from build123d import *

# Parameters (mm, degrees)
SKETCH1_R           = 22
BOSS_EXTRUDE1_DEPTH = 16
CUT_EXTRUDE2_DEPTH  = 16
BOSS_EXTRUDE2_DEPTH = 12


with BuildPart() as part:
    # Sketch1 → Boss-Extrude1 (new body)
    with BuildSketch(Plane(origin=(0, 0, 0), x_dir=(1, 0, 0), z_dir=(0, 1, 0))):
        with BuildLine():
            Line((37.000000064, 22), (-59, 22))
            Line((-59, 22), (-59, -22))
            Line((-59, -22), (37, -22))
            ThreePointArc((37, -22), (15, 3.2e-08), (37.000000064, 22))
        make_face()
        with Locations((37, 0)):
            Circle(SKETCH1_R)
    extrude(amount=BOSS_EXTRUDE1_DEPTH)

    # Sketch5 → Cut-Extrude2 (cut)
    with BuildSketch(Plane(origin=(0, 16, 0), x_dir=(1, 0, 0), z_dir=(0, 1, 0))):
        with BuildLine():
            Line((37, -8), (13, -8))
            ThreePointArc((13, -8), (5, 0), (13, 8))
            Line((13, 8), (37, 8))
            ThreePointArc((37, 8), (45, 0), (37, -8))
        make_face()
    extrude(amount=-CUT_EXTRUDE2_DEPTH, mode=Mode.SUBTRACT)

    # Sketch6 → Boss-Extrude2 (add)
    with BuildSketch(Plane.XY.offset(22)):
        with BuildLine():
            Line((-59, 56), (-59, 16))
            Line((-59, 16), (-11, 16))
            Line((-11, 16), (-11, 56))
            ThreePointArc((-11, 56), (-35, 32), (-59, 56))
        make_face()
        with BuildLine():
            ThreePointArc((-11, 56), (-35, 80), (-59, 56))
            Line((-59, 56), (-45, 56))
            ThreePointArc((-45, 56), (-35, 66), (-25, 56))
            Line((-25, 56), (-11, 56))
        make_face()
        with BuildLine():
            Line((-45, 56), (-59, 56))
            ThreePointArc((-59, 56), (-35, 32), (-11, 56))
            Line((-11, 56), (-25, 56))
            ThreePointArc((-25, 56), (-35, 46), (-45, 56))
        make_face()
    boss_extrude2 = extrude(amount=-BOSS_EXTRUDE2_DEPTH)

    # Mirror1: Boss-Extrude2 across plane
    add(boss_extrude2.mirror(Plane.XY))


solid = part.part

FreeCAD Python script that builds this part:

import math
import FreeCAD as App
import Part
import Sketcher

doc = App.newDocument("Part")
body = doc.addObject("PartDesign::Body", "Body")

# Sketch on XZ plane
sketch1 = body.newObject("Sketcher::SketchObject", "Sketch")
sketch1.AttachmentSupport = (doc.getObject("XZ_Plane"), [""])
sketch1.MapMode = "FlatFace"
sketch1.addGeometry([
    Part.LineSegment(App.Vector(37, -22, 0), App.Vector(-59, -22, 0)),
    Part.LineSegment(App.Vector(-59, -22, 0), App.Vector(-59, 22, 0)),
    Part.LineSegment(App.Vector(-59, 22, 0), App.Vector(37, 22, 0)),
    Part.ArcOfCircle(Part.Circle(App.Vector(37, 0, 0), App.Vector(0, 0, 1), 22), math.radians(-90), math.radians(90)),
], False)
sketch1.addConstraint([
    Sketcher.Constraint("Coincident", 0, 2, 1, 1),
    Sketcher.Constraint("Coincident", 1, 2, 2, 1),
    Sketcher.Constraint("Tangent", 2, 2, 3, 2),
    Sketcher.Constraint("Tangent", 3, 1, 0, 1),
    Sketcher.Constraint("Horizontal", 0),
    Sketcher.Constraint("Vertical", 1),
    Sketcher.Constraint("Horizontal", 2),
    Sketcher.Constraint("PointOnObject", 3, 3, -1),
    Sketcher.Constraint("Radius", 3, 22.0),
    Sketcher.Constraint("DistanceX", 0, 2, 0, 1, 96.0),
    Sketcher.Constraint("DistanceX", -1, 1, 3, 3, 37.0),
])
pad1 = body.newObject("PartDesign::Pad", "Pad")
pad1.Profile = sketch1
pad1.Length = 16
pad1.Reversed = True

# Sketch on XZ plane
sketch2 = body.newObject("Sketcher::SketchObject", "Sketch001")
sketch2.AttachmentSupport = (doc.getObject("XZ_Plane"), [""])
sketch2.MapMode = "FlatFace"
sketch2.AttachmentOffset = App.Placement(App.Vector(0, 0, -16), App.Rotation())
sketch2.addGeometry([
    Part.LineSegment(App.Vector(13, 8, 0), App.Vector(37, 8, 0)),
    Part.ArcOfCircle(Part.Circle(App.Vector(37, 0, 0), App.Vector(0, 0, 1), 8), math.radians(-90), math.radians(90)),
    Part.LineSegment(App.Vector(37, -8, 0), App.Vector(13, -8, 0)),
    Part.ArcOfCircle(Part.Circle(App.Vector(13, 0, 0), App.Vector(0, 0, 1), 8), math.radians(90), math.radians(270)),
], False)
sketch2.addConstraint([
    Sketcher.Constraint("Tangent", 0, 2, 1, 2),
    Sketcher.Constraint("Tangent", 1, 1, 2, 1),
    Sketcher.Constraint("Tangent", 2, 2, 3, 2),
    Sketcher.Constraint("Tangent", 3, 1, 0, 1),
    Sketcher.Constraint("Horizontal", 0),
    Sketcher.Constraint("Horizontal", 2),
    Sketcher.Constraint("PointOnObject", 1, 3, -1),
    Sketcher.Constraint("Radius", 1, 8.0),
    Sketcher.Constraint("DistanceX", 0, 1, 0, 2, 24.0),
    Sketcher.Constraint("DistanceX", -1, 1, 1, 3, 37.0),
])
pocket1 = body.newObject("PartDesign::Pocket", "Pocket")
pocket1.Profile = sketch2
pocket1.Length = 16
pocket1.Reversed = True

# Sketch on XY plane
sketch3 = body.newObject("Sketcher::SketchObject", "Sketch002")
sketch3.AttachmentSupport = (doc.getObject("XY_Plane"), [""])
sketch3.MapMode = "FlatFace"
sketch3.AttachmentOffset = App.Placement(App.Vector(0, 0, 22), App.Rotation())
sketch3.addGeometry([
    Part.ArcOfCircle(Part.Circle(App.Vector(-35, 56, 0), App.Vector(0, 0, 1), 24), math.radians(0), math.radians(180)),  # 0
    Part.LineSegment(App.Vector(-59, 56, 0), App.Vector(-59, 16, 0)),  # 1
    Part.LineSegment(App.Vector(-59, 16, 0), App.Vector(-11, 16, 0)),  # 2
    Part.LineSegment(App.Vector(-11, 16, 0), App.Vector(-11, 56, 0)),  # 3
    Part.Circle(App.Vector(-35, 56, 0), App.Vector(0, 0, 1), 10),  # 4
], False)
sketch3.addConstraint([
    Sketcher.Constraint("Tangent", 0, 2, 1, 1),
    Sketcher.Constraint("Coincident", 1, 2, 2, 1),
    Sketcher.Constraint("Coincident", 2, 2, 3, 1),
    Sketcher.Constraint("Tangent", 3, 2, 0, 1),
    Sketcher.Constraint("Vertical", 1),
    Sketcher.Constraint("Horizontal", 2),
    Sketcher.Constraint("Vertical", 3),
    Sketcher.Constraint("Coincident", 4, 3, 0, 3),
    Sketcher.Constraint("Diameter", 4, 20.0),
    Sketcher.Constraint("Radius", 0, 24.0),
    Sketcher.Constraint("DistanceY", 1, 2, 1, 1, 40.0),
    Sketcher.Constraint("DistanceX", 0, 3, -1, 1, 35.0),
    Sketcher.Constraint("DistanceY", -1, 1, 0, 3, 56.0),
])
pad2 = body.newObject("PartDesign::Pad", "Pad001")
pad2.Profile = sketch3
pad2.Length = 12
pad2.Reversed = True
doc.recompute()

mirrored = body.newObject("PartDesign::Mirrored", "Mirrored")
mirrored.Originals = [pad2]
mirrored.MirrorPlane = (doc.getObject("XY_Plane"), [""])
body.Tip = mirrored

doc.recompute()
